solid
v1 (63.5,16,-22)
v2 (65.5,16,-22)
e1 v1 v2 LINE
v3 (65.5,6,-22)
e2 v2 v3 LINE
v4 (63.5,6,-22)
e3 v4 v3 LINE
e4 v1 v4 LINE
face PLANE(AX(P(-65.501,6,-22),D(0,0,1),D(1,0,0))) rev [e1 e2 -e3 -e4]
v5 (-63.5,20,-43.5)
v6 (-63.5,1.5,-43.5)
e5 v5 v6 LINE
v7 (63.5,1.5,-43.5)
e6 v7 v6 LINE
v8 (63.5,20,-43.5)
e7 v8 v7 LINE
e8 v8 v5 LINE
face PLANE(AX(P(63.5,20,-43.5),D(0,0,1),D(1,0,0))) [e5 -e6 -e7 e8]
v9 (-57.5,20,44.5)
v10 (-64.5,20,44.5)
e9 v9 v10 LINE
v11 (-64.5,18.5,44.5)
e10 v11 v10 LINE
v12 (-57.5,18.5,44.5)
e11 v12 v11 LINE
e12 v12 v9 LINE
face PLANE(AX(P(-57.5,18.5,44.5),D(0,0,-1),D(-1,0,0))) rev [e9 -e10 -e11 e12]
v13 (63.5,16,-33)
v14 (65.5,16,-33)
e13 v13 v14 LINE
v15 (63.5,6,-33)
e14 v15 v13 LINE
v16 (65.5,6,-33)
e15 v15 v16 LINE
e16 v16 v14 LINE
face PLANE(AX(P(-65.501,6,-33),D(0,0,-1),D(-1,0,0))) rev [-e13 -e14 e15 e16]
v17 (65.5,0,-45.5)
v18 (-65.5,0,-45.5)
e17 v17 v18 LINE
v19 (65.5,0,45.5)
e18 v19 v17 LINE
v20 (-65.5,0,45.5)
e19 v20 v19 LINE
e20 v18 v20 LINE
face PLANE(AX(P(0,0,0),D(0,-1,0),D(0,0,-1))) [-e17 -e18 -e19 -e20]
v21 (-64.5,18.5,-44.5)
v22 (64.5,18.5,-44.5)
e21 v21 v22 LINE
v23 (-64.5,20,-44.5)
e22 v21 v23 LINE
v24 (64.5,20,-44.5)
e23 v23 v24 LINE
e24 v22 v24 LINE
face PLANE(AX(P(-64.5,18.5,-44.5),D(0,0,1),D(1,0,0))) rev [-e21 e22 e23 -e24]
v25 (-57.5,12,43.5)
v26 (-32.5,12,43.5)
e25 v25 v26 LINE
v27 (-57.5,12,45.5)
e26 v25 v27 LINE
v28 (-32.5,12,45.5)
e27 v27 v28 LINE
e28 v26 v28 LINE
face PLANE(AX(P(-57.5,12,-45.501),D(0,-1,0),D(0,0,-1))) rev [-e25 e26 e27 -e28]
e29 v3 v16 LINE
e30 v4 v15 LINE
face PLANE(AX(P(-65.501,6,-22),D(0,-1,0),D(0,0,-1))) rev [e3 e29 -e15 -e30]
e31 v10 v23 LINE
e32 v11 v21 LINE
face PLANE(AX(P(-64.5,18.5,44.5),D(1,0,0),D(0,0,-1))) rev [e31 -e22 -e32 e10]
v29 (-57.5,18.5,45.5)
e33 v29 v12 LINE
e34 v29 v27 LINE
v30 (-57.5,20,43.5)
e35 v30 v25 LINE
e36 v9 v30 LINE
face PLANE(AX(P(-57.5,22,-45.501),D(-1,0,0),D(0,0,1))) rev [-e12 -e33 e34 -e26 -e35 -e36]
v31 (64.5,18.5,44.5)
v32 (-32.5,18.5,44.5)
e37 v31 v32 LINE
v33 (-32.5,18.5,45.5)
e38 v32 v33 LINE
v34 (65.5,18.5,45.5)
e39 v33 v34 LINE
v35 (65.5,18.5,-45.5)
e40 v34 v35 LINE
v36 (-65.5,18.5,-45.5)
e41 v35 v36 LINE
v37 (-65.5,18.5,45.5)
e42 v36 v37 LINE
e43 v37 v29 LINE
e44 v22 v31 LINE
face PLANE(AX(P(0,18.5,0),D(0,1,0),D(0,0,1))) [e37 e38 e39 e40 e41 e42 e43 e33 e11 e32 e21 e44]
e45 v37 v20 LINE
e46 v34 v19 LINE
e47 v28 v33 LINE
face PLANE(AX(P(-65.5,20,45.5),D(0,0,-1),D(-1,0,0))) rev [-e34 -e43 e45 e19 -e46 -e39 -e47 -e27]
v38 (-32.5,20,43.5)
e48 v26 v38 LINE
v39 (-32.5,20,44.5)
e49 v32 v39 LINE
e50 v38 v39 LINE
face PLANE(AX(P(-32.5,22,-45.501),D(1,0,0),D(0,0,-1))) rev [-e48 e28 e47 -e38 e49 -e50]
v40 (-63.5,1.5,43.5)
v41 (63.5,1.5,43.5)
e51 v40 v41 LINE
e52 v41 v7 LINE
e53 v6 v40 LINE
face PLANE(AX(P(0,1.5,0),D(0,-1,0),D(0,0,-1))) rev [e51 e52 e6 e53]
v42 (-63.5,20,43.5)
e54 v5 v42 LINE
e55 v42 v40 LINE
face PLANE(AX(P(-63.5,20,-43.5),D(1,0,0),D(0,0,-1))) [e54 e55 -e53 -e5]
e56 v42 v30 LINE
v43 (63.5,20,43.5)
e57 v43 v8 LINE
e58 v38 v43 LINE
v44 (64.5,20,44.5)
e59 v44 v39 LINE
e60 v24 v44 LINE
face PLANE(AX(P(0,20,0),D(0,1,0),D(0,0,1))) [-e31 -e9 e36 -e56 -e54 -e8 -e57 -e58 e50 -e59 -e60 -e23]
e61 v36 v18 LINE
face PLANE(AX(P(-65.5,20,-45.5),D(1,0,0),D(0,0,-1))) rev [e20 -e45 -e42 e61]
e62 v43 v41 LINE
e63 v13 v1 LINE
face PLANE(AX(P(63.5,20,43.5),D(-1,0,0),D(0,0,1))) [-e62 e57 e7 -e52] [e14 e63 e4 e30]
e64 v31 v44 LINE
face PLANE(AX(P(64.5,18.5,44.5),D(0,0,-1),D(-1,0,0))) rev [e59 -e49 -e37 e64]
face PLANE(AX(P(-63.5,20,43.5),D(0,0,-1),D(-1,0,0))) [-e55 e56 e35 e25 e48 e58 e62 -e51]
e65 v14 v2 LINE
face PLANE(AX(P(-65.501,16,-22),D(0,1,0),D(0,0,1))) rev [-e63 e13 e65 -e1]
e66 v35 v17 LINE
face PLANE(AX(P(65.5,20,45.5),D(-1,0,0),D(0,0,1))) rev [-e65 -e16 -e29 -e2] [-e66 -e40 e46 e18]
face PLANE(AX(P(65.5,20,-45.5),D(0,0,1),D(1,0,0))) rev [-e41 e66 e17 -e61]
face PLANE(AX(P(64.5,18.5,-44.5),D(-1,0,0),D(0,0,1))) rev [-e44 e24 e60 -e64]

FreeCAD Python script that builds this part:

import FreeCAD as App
import Part
import Sketcher
Q = App.Units.Quantity

doc = App.newDocument("Part")
body = doc.addObject("PartDesign::Body", "Body")

# Sketch on XZ plane
sketch1 = body.newObject("Sketcher::SketchObject", "Sketch")
sketch1.AttachmentSupport = (doc.getObject("XZ_Plane"), [""])
sketch1.MapMode = "FlatFace"
sketch1.addGeometry(Part.LineSegment(App.Vector(-64, -44, 0), App.Vector(-64, 44, 0)), False)
sketch1.addGeometry(Part.LineSegment(App.Vector(-64, 44, 0), App.Vector(64, 44, 0)), False)
sketch1.addGeometry(Part.LineSegment(App.Vector(64, 44, 0), App.Vector(64, -44, 0)), False)
sketch1.addGeometry(Part.LineSegment(App.Vector(64, -44, 0), App.Vector(-64, -44, 0)), False)
sketch1.addConstraint(Sketcher.Constraint("Coincident", 0, 2, 1, 1))
sketch1.addConstraint(Sketcher.Constraint("Coincident", 1, 2, 2, 1))
sketch1.addConstraint(Sketcher.Constraint("Coincident", 2, 2, 3, 1))
sketch1.addConstraint(Sketcher.Constraint("Coincident", 3, 2, 0, 1))
sketch1.addConstraint(Sketcher.Constraint("Vertical", 0))
sketch1.addConstraint(Sketcher.Constraint("Horizontal", 1))
sketch1.addConstraint(Sketcher.Constraint("Vertical", 2))
sketch1.addConstraint(Sketcher.Constraint("Horizontal", 3))
sketch1.addConstraint(Sketcher.Constraint("Symmetric", 0, 2, 2, 2, -1, 1))
sketch1.addConstraint(Sketcher.Constraint("DistanceX", 1, 1, 1, 2, Q("127 mm")))
sketch1.addConstraint(Sketcher.Constraint("DistanceY", 0, 1, 0, 2, Q("87 mm")))
pad1 = body.newObject("PartDesign::Pad", "Pad")
pad1.Profile = sketch1
pad1.Length = 1.5
pad1.Reversed = True

# Sketch on XZ plane
sketch2 = body.newObject("Sketcher::SketchObject", "Sketch001")
sketch2.AttachmentSupport = (doc.getObject("XZ_Plane"), [""])
sketch2.MapMode = "FlatFace"
sketch2.addGeometry(Part.LineSegment(App.Vector(-66, -46, 0), App.Vector(-66, 46, 0)), False)
sketch2.addGeometry(Part.LineSegment(App.Vector(-66, 46, 0), App.Vector(66, 46, 0)), False)
sketch2.addGeometry(Part.LineSegment(App.Vector(66, 46, 0), App.Vector(66, -46, 0)), False)
sketch2.addGeometry(Part.LineSegment(App.Vector(66, -46, 0), App.Vector(-66, -46, 0)), False)
sketch2.addGeometry(Part.LineSegment(App.Vector(64, 44, 0), App.Vector(-64, 44, 0)), False)
sketch2.addGeometry(Part.LineSegment(App.Vector(-64, 44, 0), App.Vector(-64, -44, 0)), False)
sketch2.addGeometry(Part.LineSegment(App.Vector(-64, -44, 0), App.Vector(64, -44, 0)), False)
sketch2.addGeometry(Part.LineSegment(App.Vector(64, -44, 0), App.Vector(64, 44, 0)), False)
sketch2.addConstraint(Sketcher.Constraint("Coincident", 0, 2, 1, 1))
sketch2.addConstraint(Sketcher.Constraint("Coincident", 1, 2, 2, 1))
sketch2.addConstraint(Sketcher.Constraint("Coincident", 2, 2, 3, 1))
sketch2.addConstraint(Sketcher.Constraint("Coincident", 3, 2, 0, 1))
sketch2.addConstraint(Sketcher.Constraint("Coincident", 4, 2, 5, 1))
sketch2.addConstraint(Sketcher.Constraint("Coincident", 5, 2, 6, 1))
sketch2.addConstraint(Sketcher.Constraint("Coincident", 6, 2, 7, 1))
sketch2.addConstraint(Sketcher.Constraint("Coincident", 7, 2, 4, 1))
sketch2.addConstraint(Sketcher.Constraint("Vertical", 0))
sketch2.addConstraint(Sketcher.Constraint("Horizontal", 1))
sketch2.addConstraint(Sketcher.Constraint("Vertical", 2))
sketch2.addConstraint(Sketcher.Constraint("Horizontal", 3))
sketch2.addConstraint(Sketcher.Constraint("Horizontal", 4))
sketch2.addConstraint(Sketcher.Constraint("Vertical", 5))
sketch2.addConstraint(Sketcher.Constraint("Horizontal", 6))
sketch2.addConstraint(Sketcher.Constraint("Vertical", 7))
sketch2.addConstraint(Sketcher.Constraint("Symmetric", 0, 2, 2, 2, -1, 1))
sketch2.addConstraint(Sketcher.Constraint("Symmetric", 4, 2, 6, 2, -1, 1))
sketch2.addConstraint(Sketcher.Constraint("DistanceX", 1, 1, 1, 2, Q("131 mm")))
sketch2.addConstraint(Sketcher.Constraint("DistanceX", 4, 2, 4, 1, Q("127 mm")))
sketch2.addConstraint(Sketcher.Constraint("DistanceY", 0, 1, 0, 2, Q("91 mm")))
sketch2.addConstraint(Sketcher.Constraint("DistanceY", 5, 2, 5, 1, Q("87 mm")))
pad2 = body.newObject("PartDesign::Pad", "Pad001")
pad2.Profile = sketch2
pad2.Length = 20
pad2.Reversed = True

# Sketch on XY plane
sketch3 = body.newObject("Sketcher::SketchObject", "Sketch002")
sketch3.AttachmentSupport = (doc.getObject("XY_Plane"), [""])
sketch3.MapMode = "FlatFace"
sketch3.AttachmentOffset = App.Placement(App.Vector(0, 0, 45.5), App.Rotation())
sketch3.addGeometry(Part.LineSegment(App.Vector(-58, 22, 0), App.Vector(-58, 12, 0)), False)
sketch3.addGeometry(Part.LineSegment(App.Vector(-58, 12, 0), App.Vector(-32, 12, 0)), False)
sketch3.addGeometry(Part.LineSegment(App.Vector(-32, 12, 0), App.Vector(-32, 22, 0)), False)
sketch3.addGeometry(Part.LineSegment(App.Vector(-32, 22, 0), App.Vector(-58, 22, 0)), False)
sketch3.addConstraint(Sketcher.Constraint("Coincident", 0, 2, 1, 1))
sketch3.addConstraint(Sketcher.Constraint("Coincident", 1, 2, 2, 1))
sketch3.addConstraint(Sketcher.Constraint("Coincident", 2, 2, 3, 1))
sketch3.addConstraint(Sketcher.Constraint("Coincident", 3, 2, 0, 1))
sketch3.addConstraint(Sketcher.Constraint("Vertical", 0))
sketch3.addConstraint(Sketcher.Constraint("Horizontal", 1))
sketch3.addConstraint(Sketcher.Constraint("Vertical", 2))
sketch3.addConstraint(Sketcher.Constraint("Horizontal", 3))
sketch3.addConstraint(Sketcher.Constraint("DistanceX", 1, 1, 1, 2, Q("25 mm")))
sketch3.addConstraint(Sketcher.Constraint("DistanceY", 0, 2, 0, 1, Q("10 mm")))
sketch3.addConstraint(Sketcher.Constraint("DistanceY", -1, 1, 0, 2, Q("12 mm")))
sketch3.addConstraint(Sketcher.Constraint("DistanceX", 0, 2, -1, 1, Q("57.5 mm")))
pocket1 = body.newObject("PartDesign::Pocket", "Pocket")
pocket1.Profile = sketch3
pocket1.Type = "UpToFirst"

# Sketch on YZ plane
sketch4 = body.newObject("Sketcher::SketchObject", "Sketch003")
sketch4.AttachmentSupport = (doc.getObject("YZ_Plane"), [""])
sketch4.MapMode = "FlatFace"
sketch4.AttachmentOffset = App.Placement(App.Vector(0, 0, 65.5), App.Rotation())
sketch4.addGeometry(Part.LineSegment(App.Vector(16, -22, 0), App.Vector(6, -22, 0)), False)
sketch4.addGeometry(Part.LineSegment(App.Vector(6, -22, 0), App.Vector(6, -33, 0)), False)
sketch4.addGeometry(Part.LineSegment(App.Vector(6, -33, 0), App.Vector(16, -33, 0)), False)
sketch4.addGeometry(Part.LineSegment(App.Vector(16, -33, 0), App.Vector(16, -22, 0)), False)
sketch4.addConstraint(Sketcher.Constraint("Coincident", 0, 2, 1, 1))
sketch4.addConstraint(Sketcher.Constraint("Coincident", 1, 2, 2, 1))
sketch4.addConstraint(Sketcher.Constraint("Coincident", 2, 2, 3, 1))
sketch4.addConstraint(Sketcher.Constraint("Coincident", 3, 2, 0, 1))
sketch4.addConstraint(Sketcher.Constraint("Horizontal", 0))
sketch4.addConstraint(Sketcher.Constraint("Vertical", 1))
sketch4.addConstraint(Sketcher.Constraint("Horizontal", 2))
sketch4.addConstraint(Sketcher.Constraint("Vertical", 3))
sketch4.addConstraint(Sketcher.Constraint("DistanceX", 0, 2, 0, 1, Q("10 mm")))
sketch4.addConstraint(Sketcher.Constraint("DistanceY", 1, 2, 1, 1, Q("11 mm")))
sketch4.addConstraint(Sketcher.Constraint("DistanceX", -1, 1, 0, 2, Q("6 mm")))
sketch4.addConstraint(Sketcher.Constraint("DistanceY", 0, 2, -1, 1, Q("22 mm")))
pocket2 = body.newObject("PartDesign::Pocket", "Pocket001")
pocket2.Profile = sketch4
pocket2.Type = "UpToFirst"

# Sketch on XZ plane
sketch5 = body.newObject("Sketcher::SketchObject", "Sketch004")
sketch5.AttachmentSupport = (doc.getObject("XZ_Plane"), [""])
sketch5.MapMode = "FlatFace"
sketch5.AttachmentOffset = App.Placement(App.Vector(0, 0, -20), App.Rotation())
sketch5.addGeometry(Part.LineSegment(App.Vector(-57.5, 44.5, 0), App.Vector(-64.5, 44.5, 0)), False)
sketch5.addGeometry(Part.LineSegment(App.Vector(-64.5, 44.5, 0), App.Vector(-64.5, -44.5, 0)), False)
sketch5.addGeometry(Part.LineSegment(App.Vector(-64.5, -44.5, 0), App.Vector(64.5, -44.5, 0)), False)
sketch5.addGeometry(Part.LineSegment(App.Vector(64.5, -44.5, 0), App.Vector(64.5, 44.5, 0)), False)
sketch5.addGeometry(Part.LineSegment(App.Vector(64.5, 44.5, 0), App.Vector(-32.5, 44.5, 0)), False)
sketch5.addGeometry(Part.LineSegment(App.Vector(-32.5, 44.5, 0), App.Vector(-32.5, 45.5, 0)), False)
sketch5.addGeometry(Part.LineSegment(App.Vector(-32.5, 45.5, 0), App.Vector(65.5, 45.5, 0)), False)
sketch5.addGeometry(Part.LineSegment(App.Vector(65.5, 45.5, 0), App.Vector(65.5, -45.5, 0)), False)
sketch5.addGeometry(Part.LineSegment(App.Vector(65.5, -45.5, 0), App.Vector(-65.5, -45.5, 0)), False)
sketch5.addGeometry(Part.LineSegment(App.Vector(-65.5, -45.5, 0), App.Vector(-65.5, 45.5, 0)), False)
sketch5.addGeometry(Part.LineSegment(App.Vector(-65.5, 45.5, 0), App.Vector(-57.5, 45.5, 0)), False)
sketch5.addGeometry(Part.LineSegment(App.Vector(-57.5, 45.5, 0), App.Vector(-57.5, 44.5, 0)), False)
sketch5.addConstraint(Sketcher.Constraint("Coincident", 0, 2, 1, 1))
sketch5.addConstraint(Sketcher.Constraint("Coincident", 1, 2, 2, 1))
sketch5.addConstraint(Sketcher.Constraint("Coincident", 2, 2, 3, 1))
sketch5.addConstraint(Sketcher.Constraint("Coincident", 3, 2, 4, 1))
sketch5.addConstraint(Sketcher.Constraint("Coincident", 4, 2, 5, 1))
sketch5.addConstraint(Sketcher.Constraint("Coincident", 5, 2, 6, 1))
sketch5.addConstraint(Sketcher.Constraint("Coincident", 6, 2, 7, 1))
sketch5.addConstraint(Sketcher.Constraint("Coincident", 7, 2, 8, 1))
sketch5.addConstraint(Sketcher.Constraint("Coincident", 8, 2, 9, 1))
sketch5.addConstraint(Sketcher.Constraint("Coincident", 9, 2, 10, 1))
sketch5.addConstraint(Sketcher.Constraint("Coincident", 10, 2, 11, 1))
sketch5.addConstraint(Sketcher.Constraint("Coincident", 11, 2, 0, 1))
sketch5.addConstraint(Sketcher.Constraint("Horizontal", 0))
sketch5.addConstraint(Sketcher.Constraint("Vertical", 1))
sketch5.addConstraint(Sketcher.Constraint("Horizontal", 2))
sketch5.addConstraint(Sketcher.Constraint("Vertical", 3))
sketch5.addConstraint(Sketcher.Constraint("Horizontal", 4))
sketch5.addConstraint(Sketcher.Constraint("Vertical", 5))
sketch5.addConstraint(Sketcher.Constraint("Horizontal", 6))
sketch5.addConstraint(Sketcher.Constraint("Vertical", 7))
sketch5.addConstraint(Sketcher.Constraint("Horizontal", 8))
sketch5.addConstraint(Sketcher.Constraint("Vertical", 9))
sketch5.addConstraint(Sketcher.Constraint("Horizontal", 10))
sketch5.addConstraint(Sketcher.Constraint("Vertical", 11))
sketch5.addConstraint(Sketcher.Constraint("Symmetric", 0, 2, 2, 2, -1, 1))
sketch5.addConstraint(Sketcher.Constraint("Symmetric", 6, 2, 8, 2, -1, 1))
sketch5.addConstraint(Sketcher.Constraint("Horizontal", 0, 2, 3, 2))
sketch5.addConstraint(Sketcher.Constraint("Horizontal", 6, 2, 9, 2))
sketch5.addConstraint(Sketcher.Constraint("DistanceX", 0, 2, 0, 1, Q("7 mm")))
sketch5.addConstraint(Sketcher.Constraint("DistanceX", 2, 1, 2, 2, Q("129 mm")))
sketch5.addConstraint(Sketcher.Constraint("DistanceX", 4, 2, 4, 1, Q("97 mm")))
sketch5.addConstraint(Sketcher.Constraint("DistanceX", 6, 1, 6, 2, Q("98 mm")))
sketch5.addConstraint(Sketcher.Constraint("DistanceY", 1, 2, 1, 1, Q("89 mm")))
sketch5.addConstraint(Sketcher.Constraint("DistanceY", 5, 1, 5, 2, Q("1 mm")))
pocket3 = body.newObject("PartDesign::Pocket", "Pocket002")
pocket3.Profile = sketch5
pocket3.Length = 1.5
pocket3.Reversed = True

doc.recompute()
